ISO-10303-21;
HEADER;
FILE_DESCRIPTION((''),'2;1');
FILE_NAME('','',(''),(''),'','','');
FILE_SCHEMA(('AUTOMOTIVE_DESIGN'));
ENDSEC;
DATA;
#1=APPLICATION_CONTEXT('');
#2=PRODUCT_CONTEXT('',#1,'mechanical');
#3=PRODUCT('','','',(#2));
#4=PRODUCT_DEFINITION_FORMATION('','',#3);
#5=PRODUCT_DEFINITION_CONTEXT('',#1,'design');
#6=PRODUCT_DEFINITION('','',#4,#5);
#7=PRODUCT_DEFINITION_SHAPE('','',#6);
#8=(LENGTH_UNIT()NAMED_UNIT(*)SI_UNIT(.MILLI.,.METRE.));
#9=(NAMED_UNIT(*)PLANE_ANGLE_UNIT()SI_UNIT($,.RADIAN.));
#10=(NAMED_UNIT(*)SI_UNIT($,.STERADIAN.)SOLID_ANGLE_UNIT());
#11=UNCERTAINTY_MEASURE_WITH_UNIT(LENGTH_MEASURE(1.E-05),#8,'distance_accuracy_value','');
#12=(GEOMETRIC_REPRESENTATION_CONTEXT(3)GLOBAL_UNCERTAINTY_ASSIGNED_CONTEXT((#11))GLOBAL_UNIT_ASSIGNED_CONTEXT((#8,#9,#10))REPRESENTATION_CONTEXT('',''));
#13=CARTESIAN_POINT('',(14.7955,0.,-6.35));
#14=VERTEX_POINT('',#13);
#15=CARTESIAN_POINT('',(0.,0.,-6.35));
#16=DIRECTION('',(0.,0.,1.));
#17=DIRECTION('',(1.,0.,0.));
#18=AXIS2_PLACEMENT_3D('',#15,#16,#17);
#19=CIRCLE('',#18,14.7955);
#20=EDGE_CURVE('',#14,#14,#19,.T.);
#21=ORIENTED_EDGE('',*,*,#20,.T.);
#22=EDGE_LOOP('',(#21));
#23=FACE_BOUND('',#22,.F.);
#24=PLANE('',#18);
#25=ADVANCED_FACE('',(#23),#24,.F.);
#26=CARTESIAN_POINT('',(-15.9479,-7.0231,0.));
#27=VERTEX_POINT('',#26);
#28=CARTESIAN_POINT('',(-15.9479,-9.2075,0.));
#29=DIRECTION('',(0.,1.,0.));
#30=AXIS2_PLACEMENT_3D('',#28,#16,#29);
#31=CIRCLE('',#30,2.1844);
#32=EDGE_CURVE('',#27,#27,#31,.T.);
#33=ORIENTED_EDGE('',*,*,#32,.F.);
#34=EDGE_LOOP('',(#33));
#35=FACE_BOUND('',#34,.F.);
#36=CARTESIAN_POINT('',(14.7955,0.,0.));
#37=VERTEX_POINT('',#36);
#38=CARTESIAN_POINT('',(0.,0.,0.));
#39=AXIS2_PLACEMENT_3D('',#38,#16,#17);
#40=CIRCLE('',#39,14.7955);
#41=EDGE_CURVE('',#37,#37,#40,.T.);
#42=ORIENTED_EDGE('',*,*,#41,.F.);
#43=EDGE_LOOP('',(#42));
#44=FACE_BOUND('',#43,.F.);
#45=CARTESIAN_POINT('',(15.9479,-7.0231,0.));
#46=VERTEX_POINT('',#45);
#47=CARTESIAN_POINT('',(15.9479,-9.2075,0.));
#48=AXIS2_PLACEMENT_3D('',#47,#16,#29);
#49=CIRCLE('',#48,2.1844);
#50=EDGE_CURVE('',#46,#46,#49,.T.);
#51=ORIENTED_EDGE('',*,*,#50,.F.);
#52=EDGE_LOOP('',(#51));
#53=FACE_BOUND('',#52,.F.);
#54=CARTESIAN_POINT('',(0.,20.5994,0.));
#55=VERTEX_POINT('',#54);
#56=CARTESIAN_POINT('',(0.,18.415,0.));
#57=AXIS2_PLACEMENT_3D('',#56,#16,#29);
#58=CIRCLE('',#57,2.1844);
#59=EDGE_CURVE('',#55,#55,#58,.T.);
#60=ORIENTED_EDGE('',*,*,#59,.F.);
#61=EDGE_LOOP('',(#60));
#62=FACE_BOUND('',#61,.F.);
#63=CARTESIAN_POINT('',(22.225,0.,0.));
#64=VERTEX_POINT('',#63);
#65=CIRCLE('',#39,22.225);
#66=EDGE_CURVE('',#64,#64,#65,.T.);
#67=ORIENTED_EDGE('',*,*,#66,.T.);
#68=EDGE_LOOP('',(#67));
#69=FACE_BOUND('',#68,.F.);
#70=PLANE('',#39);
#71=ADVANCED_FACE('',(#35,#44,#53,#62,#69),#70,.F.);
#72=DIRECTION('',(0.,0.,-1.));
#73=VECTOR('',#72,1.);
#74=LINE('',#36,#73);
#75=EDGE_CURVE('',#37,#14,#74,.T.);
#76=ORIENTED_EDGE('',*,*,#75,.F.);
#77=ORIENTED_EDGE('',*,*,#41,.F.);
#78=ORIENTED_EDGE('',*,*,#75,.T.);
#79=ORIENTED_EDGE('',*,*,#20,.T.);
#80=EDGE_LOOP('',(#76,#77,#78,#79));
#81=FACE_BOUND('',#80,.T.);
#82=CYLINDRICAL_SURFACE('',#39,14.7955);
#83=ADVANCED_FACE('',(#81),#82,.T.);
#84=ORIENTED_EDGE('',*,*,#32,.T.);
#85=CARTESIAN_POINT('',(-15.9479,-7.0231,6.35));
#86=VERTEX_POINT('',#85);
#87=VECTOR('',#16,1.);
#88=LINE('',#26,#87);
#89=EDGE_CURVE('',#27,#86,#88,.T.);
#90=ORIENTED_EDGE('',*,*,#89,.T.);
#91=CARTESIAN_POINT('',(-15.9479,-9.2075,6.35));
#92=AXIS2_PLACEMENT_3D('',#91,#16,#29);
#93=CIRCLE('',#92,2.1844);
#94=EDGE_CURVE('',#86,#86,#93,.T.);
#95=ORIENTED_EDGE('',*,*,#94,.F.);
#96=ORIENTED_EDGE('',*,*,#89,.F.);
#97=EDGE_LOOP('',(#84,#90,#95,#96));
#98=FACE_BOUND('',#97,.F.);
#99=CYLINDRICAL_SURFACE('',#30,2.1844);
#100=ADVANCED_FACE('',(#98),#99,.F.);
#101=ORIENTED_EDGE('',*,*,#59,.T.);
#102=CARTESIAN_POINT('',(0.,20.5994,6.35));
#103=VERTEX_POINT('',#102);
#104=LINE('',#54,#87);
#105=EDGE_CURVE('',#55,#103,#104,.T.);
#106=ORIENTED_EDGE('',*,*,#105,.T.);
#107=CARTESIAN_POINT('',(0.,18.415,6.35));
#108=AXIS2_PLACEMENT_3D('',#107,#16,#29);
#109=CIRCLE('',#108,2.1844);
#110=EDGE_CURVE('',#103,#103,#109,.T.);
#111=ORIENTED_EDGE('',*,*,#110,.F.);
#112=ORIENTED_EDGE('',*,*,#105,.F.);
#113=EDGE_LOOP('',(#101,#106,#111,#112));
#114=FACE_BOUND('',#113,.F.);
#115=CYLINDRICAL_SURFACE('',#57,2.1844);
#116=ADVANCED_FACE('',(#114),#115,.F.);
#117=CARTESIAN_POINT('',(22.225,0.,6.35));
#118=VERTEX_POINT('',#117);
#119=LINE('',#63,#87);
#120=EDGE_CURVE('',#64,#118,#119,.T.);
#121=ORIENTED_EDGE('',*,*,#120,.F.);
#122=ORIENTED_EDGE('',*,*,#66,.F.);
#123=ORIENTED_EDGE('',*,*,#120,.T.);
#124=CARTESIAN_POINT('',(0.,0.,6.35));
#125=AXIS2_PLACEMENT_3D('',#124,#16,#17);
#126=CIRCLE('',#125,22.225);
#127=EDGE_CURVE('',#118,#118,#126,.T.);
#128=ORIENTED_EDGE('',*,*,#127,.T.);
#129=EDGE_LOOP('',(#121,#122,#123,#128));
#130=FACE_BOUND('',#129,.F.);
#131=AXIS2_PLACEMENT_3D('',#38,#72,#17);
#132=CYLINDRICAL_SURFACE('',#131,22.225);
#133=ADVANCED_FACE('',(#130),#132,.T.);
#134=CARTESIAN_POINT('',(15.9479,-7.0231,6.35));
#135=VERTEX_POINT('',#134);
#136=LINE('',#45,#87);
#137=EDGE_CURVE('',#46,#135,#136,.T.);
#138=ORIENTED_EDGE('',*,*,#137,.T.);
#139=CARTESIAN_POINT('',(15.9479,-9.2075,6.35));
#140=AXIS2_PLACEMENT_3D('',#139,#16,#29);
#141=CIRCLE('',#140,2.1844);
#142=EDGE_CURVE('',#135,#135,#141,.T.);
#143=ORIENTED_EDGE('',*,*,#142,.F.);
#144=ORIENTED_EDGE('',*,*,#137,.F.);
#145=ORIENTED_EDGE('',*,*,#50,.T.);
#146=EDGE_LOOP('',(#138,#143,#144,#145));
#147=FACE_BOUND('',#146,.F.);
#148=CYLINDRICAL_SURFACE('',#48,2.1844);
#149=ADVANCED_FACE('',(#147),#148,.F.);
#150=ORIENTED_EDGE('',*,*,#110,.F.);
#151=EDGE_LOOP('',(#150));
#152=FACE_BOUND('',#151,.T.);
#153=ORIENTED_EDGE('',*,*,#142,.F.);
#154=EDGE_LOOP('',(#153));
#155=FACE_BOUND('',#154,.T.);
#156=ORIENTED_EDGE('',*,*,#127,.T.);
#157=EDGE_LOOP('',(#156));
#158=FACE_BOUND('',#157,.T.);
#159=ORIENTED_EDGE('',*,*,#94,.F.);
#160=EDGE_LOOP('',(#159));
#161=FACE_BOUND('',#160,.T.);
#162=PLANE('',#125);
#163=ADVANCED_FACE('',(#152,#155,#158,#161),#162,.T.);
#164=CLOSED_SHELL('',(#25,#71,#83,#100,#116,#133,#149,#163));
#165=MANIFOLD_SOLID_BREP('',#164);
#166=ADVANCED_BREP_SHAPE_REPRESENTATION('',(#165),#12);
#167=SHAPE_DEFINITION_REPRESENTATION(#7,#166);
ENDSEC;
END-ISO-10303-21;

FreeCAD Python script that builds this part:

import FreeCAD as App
import Part
import Sketcher
Q = App.Units.Quantity

doc = App.newDocument("Part")
body = doc.addObject("PartDesign::Body", "Body")

# Sketch on XY plane
sketch1 = body.newObject("Sketcher::SketchObject", "Sketch")
sketch1.AttachmentSupport = (doc.getObject("XY_Plane"), [""])
sketch1.MapMode = "FlatFace"
sketch1.addGeometry(Part.Circle(App.Vector(0, 0, 0), App.Vector(0, 0, 1), 22), False)
sketch1.addConstraint(Sketcher.Constraint("Coincident", 0, 3, -1, 1))
sketch1.addConstraint(Sketcher.Constraint("Diameter", 0, Q("1.75 in")))
pad1 = body.newObject("PartDesign::Pad", "Pad")
pad1.Profile = sketch1
pad1.Length = Q("0.25 in")

# Sketch on XY plane
sketch2 = body.newObject("Sketcher::SketchObject", "Sketch001")
sketch2.AttachmentSupport = (doc.getObject("XY_Plane"), [""])
sketch2.MapMode = "FlatFace"
sketch2.addGeometry(Part.Circle(App.Vector(15.9, -9.2, 0), App.Vector(0, 0, 1), 2.2), False)
sketch2.addGeometry(Part.Circle(App.Vector(0, 18.4, 0), App.Vector(0, 0, 1), 2.2), False)
sketch2.addGeometry(Part.Circle(App.Vector(-15.9, -9.2, 0), App.Vector(0, 0, 1), 2.2), False)
sketch2.addConstraint(Sketcher.Constraint("Equal", 0, 1))
sketch2.addConstraint(Sketcher.Constraint("Equal", 1, 2))
sketch2.addConstraint(Sketcher.Constraint("Symmetric", 0, 3, 2, 3, -2))
sketch2.addConstraint(Sketcher.Constraint("PointOnObject", 1, 3, -2))
sketch2.addConstraint(Sketcher.Constraint("Diameter", 0, Q("0.172 in")))
sketch2.addConstraint(Sketcher.Constraint("DistanceY", -1, 1, 1, 3, Q("0.725 in")))
sketch2.addConstraint(Sketcher.Constraint("DistanceY", 0, 3, -1, 1, Q("0.3625 in")))
sketch2.addConstraint(Sketcher.Constraint("DistanceX", -1, 1, 0, 3, 15.948))
doc.recompute()
hole = body.newObject("PartDesign::Hole", "Hole")
hole.Profile = sketch2
hole.ThreadType = "None"
hole.Diameter = Q("0.172 in")
hole.DepthType = "ThroughAll"
hole.Reversed = True

# Sketch on XY plane
sketch3 = body.newObject("Sketcher::SketchObject", "Sketch002")
sketch3.AttachmentSupport = (doc.getObject("XY_Plane"), [""])
sketch3.MapMode = "FlatFace"
sketch3.addGeometry(Part.Circle(App.Vector(0, 0, 0), App.Vector(0, 0, 1), 15), False)
sketch3.addConstraint(Sketcher.Constraint("Coincident", 0, 3, -1, 1))
sketch3.addConstraint(Sketcher.Constraint("Diameter", 0, Q("1.165 in")))
pad2 = body.newObject("PartDesign::Pad", "Pad001")
pad2.Profile = sketch3
pad2.Length = Q("0.25 in")
pad2.Reversed = True

doc.recompute()
